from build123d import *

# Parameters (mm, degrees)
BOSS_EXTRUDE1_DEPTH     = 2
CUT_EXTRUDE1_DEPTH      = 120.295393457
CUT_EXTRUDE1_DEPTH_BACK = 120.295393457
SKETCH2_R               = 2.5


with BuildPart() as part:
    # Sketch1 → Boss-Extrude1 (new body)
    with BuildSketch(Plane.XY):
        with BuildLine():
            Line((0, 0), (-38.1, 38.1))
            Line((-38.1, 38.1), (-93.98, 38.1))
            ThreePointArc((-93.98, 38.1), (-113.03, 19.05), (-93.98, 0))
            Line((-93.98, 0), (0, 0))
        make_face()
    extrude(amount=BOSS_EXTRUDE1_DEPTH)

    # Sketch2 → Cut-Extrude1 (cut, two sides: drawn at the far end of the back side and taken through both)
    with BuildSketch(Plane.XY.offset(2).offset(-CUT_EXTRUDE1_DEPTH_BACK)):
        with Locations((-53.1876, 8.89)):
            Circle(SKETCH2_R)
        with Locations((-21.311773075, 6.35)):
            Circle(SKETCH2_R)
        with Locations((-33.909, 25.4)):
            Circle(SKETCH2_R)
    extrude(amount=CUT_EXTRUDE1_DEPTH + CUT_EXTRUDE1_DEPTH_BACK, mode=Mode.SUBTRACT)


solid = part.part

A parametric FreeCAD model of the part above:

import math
import FreeCAD as App
import Part
import Sketcher
from FreeCAD import Vector
Q = App.Units.Quantity

doc = App.newDocument("Part")
body = doc.addObject("PartDesign::Body", "Body")

# Sketch on XY plane
sketch1 = doc.addObject("Sketcher::SketchObject", "Sketch")
body.addObject(sketch1)
sketch1.AttachmentSupport = (doc.XY_Plane, [""])
sketch1.MapMode = "FlatFace"
sketch1.addGeometry(Part.LineSegment(Vector(0, 0, 0), Vector(-38, 38, 0)), False)
sketch1.addGeometry(Part.LineSegment(Vector(-38, 38, 0), Vector(-94, 38, 0)), False)
sketch1.addGeometry(Part.ArcOfCircle(Part.Circle(Vector(-94, 19, 0), Vector(0, 0, 1), 19), math.radians(90), math.radians(270)), False)
sketch1.addGeometry(Part.LineSegment(Vector(-94, 0, 0), Vector(0, 0, 0)), False)
sketch1.addConstraint(Sketcher.Constraint("Coincident", 0, 2, 1, 1))
sketch1.addConstraint(Sketcher.Constraint("Tangent", 1, 2, 2, 1))
sketch1.addConstraint(Sketcher.Constraint("Tangent", 2, 2, 3, 1))
sketch1.addConstraint(Sketcher.Constraint("Coincident", 3, 2, 0, 1))
sketch1.addConstraint(Sketcher.Constraint("Horizontal", 1))
sketch1.addConstraint(Sketcher.Constraint("Horizontal", 3))
sketch1.addConstraint(Sketcher.Constraint("Coincident", 3, 2, -1, 1))
sketch1.addConstraint(Sketcher.Constraint("Radius", 2, Q("0.75 in")))
sketch1.addConstraint(Sketcher.Constraint("DistanceX", 1, 2, 1, 1, Q("2.2 in")))
sketch1.addConstraint(Sketcher.Constraint("DistanceX", 3, 1, 3, 2, Q("3.7 in")))
pad1 = doc.addObject("PartDesign::Pad", "Pad")
body.addObject(pad1)
pad1.Profile = sketch1
pad1.Length = 2

# Sketch on XY plane
sketch2 = doc.addObject("Sketcher::SketchObject", "Sketch001")
body.addObject(sketch2)
sketch2.AttachmentSupport = (doc.XY_Plane, [""])
sketch2.MapMode = "FlatFace"
sketch2.AttachmentOffset = App.Placement(Vector(0, 0, 2), App.Rotation())
sketch2.addGeometry(Part.Circle(Vector(-53.2, 8.9, 0), Vector(0, 0, 1), 2.5), False)
sketch2.addGeometry(Part.Circle(Vector(-21.3, 6.3, 0), Vector(0, 0, 1), 2.5), False)
sketch2.addGeometry(Part.Circle(Vector(-33.9, 25.4, 0), Vector(0, 0, 1), 2.5), False)
sketch2.addConstraint(Sketcher.Constraint("Equal", 0, 1))
sketch2.addConstraint(Sketcher.Constraint("Equal", 1, 2))
sketch2.addConstraint(Sketcher.Constraint("DistanceY", -1, 1, 2, 3, Q("1 in")))
sketch2.addConstraint(Sketcher.Constraint("DistanceY", 1, 3, 0, 3, Q("0.1 in")))
sketch2.addConstraint(Sketcher.Constraint("Diameter", 0, 5.0))
sketch2.addConstraint(Sketcher.Constraint("DistanceY", -1, 1, 0, 3, Q("0.35 in")))
sketch2.addConstraint(Sketcher.Constraint("DistanceX", 0, 3, -1, 1, Q("2.094 in")))
sketch2.addConstraint(Sketcher.Constraint("DistanceX", 2, 3, -1, 1, Q("1.335 in")))
sketch2.addConstraint(Sketcher.Constraint("DistanceX", 1, 3, -1, 1, 21.311773))
pocket1 = doc.addObject("PartDesign::Pocket", "Pocket")
body.addObject(pocket1)
pocket1.Profile = sketch2
pocket1.Type = "ThroughAll"
pocket1.Midplane = True

doc.recompute()
